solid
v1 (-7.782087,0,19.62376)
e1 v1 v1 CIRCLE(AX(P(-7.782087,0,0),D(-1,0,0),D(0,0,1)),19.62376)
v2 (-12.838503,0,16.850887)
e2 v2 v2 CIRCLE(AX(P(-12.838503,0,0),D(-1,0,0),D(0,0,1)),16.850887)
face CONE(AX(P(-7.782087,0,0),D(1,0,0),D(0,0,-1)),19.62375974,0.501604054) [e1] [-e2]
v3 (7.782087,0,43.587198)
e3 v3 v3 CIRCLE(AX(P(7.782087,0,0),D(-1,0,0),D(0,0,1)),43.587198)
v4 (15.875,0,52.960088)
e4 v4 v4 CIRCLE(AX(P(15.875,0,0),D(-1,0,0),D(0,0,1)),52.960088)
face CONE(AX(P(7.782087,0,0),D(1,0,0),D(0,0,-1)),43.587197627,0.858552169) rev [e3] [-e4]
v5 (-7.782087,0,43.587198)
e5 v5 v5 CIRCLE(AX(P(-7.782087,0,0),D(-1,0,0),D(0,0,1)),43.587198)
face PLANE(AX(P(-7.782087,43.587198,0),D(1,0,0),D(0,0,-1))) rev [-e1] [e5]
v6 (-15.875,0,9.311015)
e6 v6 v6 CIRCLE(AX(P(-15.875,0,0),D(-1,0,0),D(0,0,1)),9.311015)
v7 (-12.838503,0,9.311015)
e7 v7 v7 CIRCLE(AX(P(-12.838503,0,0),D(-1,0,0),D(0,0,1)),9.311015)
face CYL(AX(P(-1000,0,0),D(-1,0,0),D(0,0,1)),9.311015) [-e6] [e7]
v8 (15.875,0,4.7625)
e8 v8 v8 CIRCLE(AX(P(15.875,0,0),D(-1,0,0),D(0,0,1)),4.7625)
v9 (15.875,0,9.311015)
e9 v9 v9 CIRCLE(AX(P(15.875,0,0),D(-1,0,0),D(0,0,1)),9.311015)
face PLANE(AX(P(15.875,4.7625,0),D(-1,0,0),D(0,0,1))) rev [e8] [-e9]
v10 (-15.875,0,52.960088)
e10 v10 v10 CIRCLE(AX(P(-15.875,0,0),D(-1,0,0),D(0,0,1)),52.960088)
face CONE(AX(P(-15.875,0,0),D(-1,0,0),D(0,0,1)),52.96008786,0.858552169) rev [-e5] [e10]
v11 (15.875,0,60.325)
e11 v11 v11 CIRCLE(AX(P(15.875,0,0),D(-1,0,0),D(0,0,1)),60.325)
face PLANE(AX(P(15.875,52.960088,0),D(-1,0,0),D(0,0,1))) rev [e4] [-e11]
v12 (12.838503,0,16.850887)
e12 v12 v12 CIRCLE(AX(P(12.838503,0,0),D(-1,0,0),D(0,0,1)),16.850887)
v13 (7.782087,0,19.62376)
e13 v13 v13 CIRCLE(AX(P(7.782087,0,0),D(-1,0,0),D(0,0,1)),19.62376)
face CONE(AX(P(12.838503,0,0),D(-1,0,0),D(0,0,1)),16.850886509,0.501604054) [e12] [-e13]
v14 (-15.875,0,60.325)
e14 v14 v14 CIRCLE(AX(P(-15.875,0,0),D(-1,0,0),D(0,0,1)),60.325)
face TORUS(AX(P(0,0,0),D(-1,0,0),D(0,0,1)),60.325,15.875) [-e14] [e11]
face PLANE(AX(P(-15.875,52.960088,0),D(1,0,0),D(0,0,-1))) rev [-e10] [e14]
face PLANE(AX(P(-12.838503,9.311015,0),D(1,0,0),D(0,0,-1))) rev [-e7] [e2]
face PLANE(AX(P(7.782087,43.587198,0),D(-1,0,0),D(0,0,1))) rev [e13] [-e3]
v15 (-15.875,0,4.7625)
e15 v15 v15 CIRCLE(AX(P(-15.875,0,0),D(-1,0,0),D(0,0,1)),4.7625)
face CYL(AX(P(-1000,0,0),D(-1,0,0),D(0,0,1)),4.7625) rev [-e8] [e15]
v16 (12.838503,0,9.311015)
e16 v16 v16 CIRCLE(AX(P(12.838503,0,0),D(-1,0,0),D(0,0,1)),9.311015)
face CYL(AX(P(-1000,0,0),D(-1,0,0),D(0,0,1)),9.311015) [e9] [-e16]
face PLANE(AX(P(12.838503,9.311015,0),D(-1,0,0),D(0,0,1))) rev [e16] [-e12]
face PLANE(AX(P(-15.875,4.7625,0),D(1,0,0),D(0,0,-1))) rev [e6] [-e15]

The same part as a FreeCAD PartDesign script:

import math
import FreeCAD as App
import Part
import Sketcher
from FreeCAD import Vector
Q = App.Units.Quantity

doc = App.newDocument("Part")
body = doc.addObject("PartDesign::Body", "Body")

sketch1 = body.newObject("Sketcher::SketchObject", "Sketch")
sketch1.AttachmentSupport = (doc.getObject("XY_Plane"), [""])
sketch1.MapMode = "FlatFace"
sketch1.addGeometry([
    Part.LineSegment(Vector(-15.875, 4.7625, 0), Vector(15.875, 4.7625, 0)),
    Part.LineSegment(Vector(15.875, 4.7625, 0), Vector(15.875, 9.311015, 0)),
    Part.LineSegment(Vector(15.875, 9.311015, 0), Vector(12.838503, 9.311015, 0)),
    Part.LineSegment(Vector(12.838503, 9.311015, 0), Vector(12.838503, 16.850887, 0)),
    Part.LineSegment(Vector(12.838503, 16.850887, 0), Vector(7.782087, 19.62376, 0)),
    Part.LineSegment(Vector(7.782087, 19.62376, 0), Vector(7.782087, 43.587198, 0)),
    Part.LineSegment(Vector(7.782087, 43.587198, 0), Vector(15.875, 52.960088, 0)),
    Part.LineSegment(Vector(15.875, 52.960088, 0), Vector(15.875, 60.325, 0)),
    Part.ArcOfCircle(Part.Circle(Vector(0, 60.325, 0), Vector(0, 0, 1), 15.875), math.radians(0), math.radians(180)),
    Part.LineSegment(Vector(-15.875, 60.325, 0), Vector(-15.875, 52.960088, 0)),
    Part.LineSegment(Vector(-15.875, 52.960088, 0), Vector(-7.782087, 43.587198, 0)),
    Part.LineSegment(Vector(-7.782087, 43.587198, 0), Vector(-7.782087, 19.62376, 0)),
    Part.LineSegment(Vector(-7.782087, 19.62376, 0), Vector(-12.838503, 16.850887, 0)),
    Part.LineSegment(Vector(-12.838503, 16.850887, 0), Vector(-12.838503, 9.311015, 0)),
    Part.LineSegment(Vector(-12.838503, 9.311015, 0), Vector(-15.875, 9.311015, 0)),
    Part.LineSegment(Vector(-15.875, 9.311015, 0), Vector(-15.875, 4.7625, 0)),
], False)
sketch1.addConstraint([
    Sketcher.Constraint("Coincident", 0, 2, 1, 1),
    Sketcher.Constraint("Coincident", 1, 2, 2, 1),
    Sketcher.Constraint("Coincident", 2, 2, 3, 1),
    Sketcher.Constraint("Coincident", 3, 2, 4, 1),
    Sketcher.Constraint("Coincident", 4, 2, 5, 1),
    Sketcher.Constraint("Coincident", 5, 2, 6, 1),
    Sketcher.Constraint("Coincident", 6, 2, 7, 1),
    Sketcher.Constraint("Tangent", 7, 2, 8, 1),
    Sketcher.Constraint("Tangent", 8, 2, 9, 1),
    Sketcher.Constraint("Coincident", 9, 2, 10, 1),
    Sketcher.Constraint("Coincident", 10, 2, 11, 1),
    Sketcher.Constraint("Coincident", 11, 2, 12, 1),
    Sketcher.Constraint("Coincident", 12, 2, 13, 1),
    Sketcher.Constraint("Coincident", 13, 2, 14, 1),
    Sketcher.Constraint("Coincident", 14, 2, 15, 1),
    Sketcher.Constraint("Coincident", 15, 2, 0, 1),
    Sketcher.Constraint("Horizontal", 0),
    Sketcher.Constraint("Vertical", 1),
    Sketcher.Constraint("Horizontal", 2),
    Sketcher.Constraint("Vertical", 3),
    Sketcher.Constraint("Vertical", 5),
    Sketcher.Constraint("Vertical", 7),
    Sketcher.Constraint("Vertical", 9),
    Sketcher.Constraint("Vertical", 11),
    Sketcher.Constraint("Vertical", 13),
    Sketcher.Constraint("Horizontal", 14),
    Sketcher.Constraint("Vertical", 15),
    Sketcher.Constraint("Symmetric", 6, 2, 9, 2, -2),
    Sketcher.Constraint("Symmetric", 5, 2, 10, 2, -2),
    Sketcher.Constraint("Symmetric", 3, 2, 12, 2, -2),
    Sketcher.Constraint("Symmetric", 1, 2, 14, 2, -2),
    Sketcher.Constraint("Horizontal", 4, 2, 11, 2),
    Sketcher.Constraint("Vertical", 1, 2, 6, 2),
    Sketcher.Constraint("Radius", 8, Q("0.625 in")),
    Sketcher.Constraint("DistanceY", -1, 1, 8, 3, Q("2.375 in")),
    Sketcher.Constraint("DistanceY", -1, 1, 0, 2, Q("0.1875 in")),
    Sketcher.Constraint("DistanceY", 3, 1, 3, 2, 7.539871),
    Sketcher.Constraint("DistanceY", 3, 2, 6, 2, 36.109201),
    Sketcher.Constraint("DistanceX", 2, 2, 2, 1, 3.036497),
    Sketcher.Constraint("DistanceY", 1, 1, 1, 2, 4.548515),
    Sketcher.Constraint("DistanceY", 5, 1, 5, 2, 23.963438),
    Sketcher.Constraint("DistanceY", -1, 1, 4, 2, 19.62376),
    Sketcher.Constraint("DistanceX", 11, 2, 3, 2, 20.62059),
])
revolution = body.newObject("PartDesign::Revolution", "Revolution")
revolution.Profile = sketch1
revolution.ReferenceAxis = (sketch1, ["H_Axis"])
revolution.Angle = 360

doc.recompute()
